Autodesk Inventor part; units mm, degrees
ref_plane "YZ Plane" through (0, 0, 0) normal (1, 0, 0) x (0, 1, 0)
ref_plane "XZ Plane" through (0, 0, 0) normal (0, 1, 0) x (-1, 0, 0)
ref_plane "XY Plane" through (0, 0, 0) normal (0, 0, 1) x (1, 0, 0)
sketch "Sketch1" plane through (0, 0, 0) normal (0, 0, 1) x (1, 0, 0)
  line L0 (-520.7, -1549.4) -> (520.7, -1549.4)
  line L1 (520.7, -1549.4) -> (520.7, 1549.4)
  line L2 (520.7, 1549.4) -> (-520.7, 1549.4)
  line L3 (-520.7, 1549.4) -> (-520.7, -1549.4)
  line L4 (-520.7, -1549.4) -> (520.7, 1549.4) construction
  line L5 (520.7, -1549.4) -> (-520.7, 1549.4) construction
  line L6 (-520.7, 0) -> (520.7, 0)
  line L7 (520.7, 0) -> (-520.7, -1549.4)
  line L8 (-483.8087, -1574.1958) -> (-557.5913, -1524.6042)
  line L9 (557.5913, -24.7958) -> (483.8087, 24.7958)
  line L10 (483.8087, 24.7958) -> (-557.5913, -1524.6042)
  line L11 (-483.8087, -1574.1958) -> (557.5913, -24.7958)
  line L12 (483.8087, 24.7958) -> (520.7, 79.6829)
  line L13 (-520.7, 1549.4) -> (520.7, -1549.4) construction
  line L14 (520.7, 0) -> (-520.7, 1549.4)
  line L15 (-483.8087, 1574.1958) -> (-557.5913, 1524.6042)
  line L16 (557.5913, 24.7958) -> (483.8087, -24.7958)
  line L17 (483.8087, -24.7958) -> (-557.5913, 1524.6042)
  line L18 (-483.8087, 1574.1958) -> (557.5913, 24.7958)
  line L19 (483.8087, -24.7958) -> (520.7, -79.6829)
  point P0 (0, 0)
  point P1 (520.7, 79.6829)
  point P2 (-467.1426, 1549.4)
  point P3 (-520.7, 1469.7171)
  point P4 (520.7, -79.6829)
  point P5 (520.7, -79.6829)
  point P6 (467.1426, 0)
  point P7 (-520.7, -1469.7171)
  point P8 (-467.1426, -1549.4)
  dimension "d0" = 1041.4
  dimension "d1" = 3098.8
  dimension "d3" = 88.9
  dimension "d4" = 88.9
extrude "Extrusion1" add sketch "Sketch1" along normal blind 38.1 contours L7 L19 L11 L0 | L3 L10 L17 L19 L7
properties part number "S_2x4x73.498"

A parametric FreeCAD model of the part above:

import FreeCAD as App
import Part
import Sketcher

V = App.Vector
Q = App.Units.Quantity


def add_polygon(sketch, points):
    """Adds a closed chain of lines whose ends are joined by coincident constraints."""
    first, n = sketch.GeometryCount, len(points)
    for a, b in zip(points, points[1:] + points[:1]):
        sketch.addGeometry(Part.LineSegment(App.Vector(*a, 0), App.Vector(*b, 0)), False)
    for i in range(n):
        sketch.addConstraint(Sketcher.Constraint("Coincident", first + i, 2, first + (i + 1) % n, 1))

doc = App.newDocument("Part")
params = doc.addObject("Spreadsheet::Sheet", "Params")
for row, (alias, value) in enumerate([
    ("pad1_length", "1.5 in"),
], start=1):
    params.set(f"A{row}", alias)
    params.set(f"B{row}", "=" + value)
    params.setAlias(f"B{row}", alias)

body = doc.addObject("PartDesign::Body", "Body")

sketch1 = body.newObject("Sketcher::SketchObject", "Sketch")
sketch1.AttachmentSupport = (doc.getObject("XY_Plane"), [""])
sketch1.MapMode = "FlatFace"
add_polygon(sketch1, [(521, -80), (484, -25), (467, 0), (-521, -1470), (-521, -1549), (-467, -1549)])
sketch1.addConstraint([
    Sketcher.Constraint("Vertical", 3),
    Sketcher.Constraint("Horizontal", 4),
    Sketcher.Constraint("PointOnObject", 1, 2, -1),
    Sketcher.Constraint("Parallel", 0, 1),
    Sketcher.Constraint("Parallel", 2, 5),
    Sketcher.Constraint("Equal", 2, 5),
    Sketcher.Constraint("DistanceX", 2, 2, 5, 2, Q("41 in")),
    Sketcher.Constraint("DistanceY", 3, 2, -1, 1, Q("61 in")),
    Sketcher.Constraint("DistanceX", 2, 2, -1, 1, Q("20.5 in")),
    Sketcher.Constraint("DistanceX", 4, 1, 4, 2, Q("53.5573 mm")),
    Sketcher.Constraint("DistanceY", 3, 2, 3, 1, Q("79.6829 mm")),
    Sketcher.Constraint("DistanceY", 5, 2, 0, 2, Q("2.1609 in")),
])
pad1 = body.newObject("PartDesign::Pad", "Pad")
pad1.Profile = sketch1
pad1.setExpression("Length", "Params.pad1_length")

doc.recompute()
